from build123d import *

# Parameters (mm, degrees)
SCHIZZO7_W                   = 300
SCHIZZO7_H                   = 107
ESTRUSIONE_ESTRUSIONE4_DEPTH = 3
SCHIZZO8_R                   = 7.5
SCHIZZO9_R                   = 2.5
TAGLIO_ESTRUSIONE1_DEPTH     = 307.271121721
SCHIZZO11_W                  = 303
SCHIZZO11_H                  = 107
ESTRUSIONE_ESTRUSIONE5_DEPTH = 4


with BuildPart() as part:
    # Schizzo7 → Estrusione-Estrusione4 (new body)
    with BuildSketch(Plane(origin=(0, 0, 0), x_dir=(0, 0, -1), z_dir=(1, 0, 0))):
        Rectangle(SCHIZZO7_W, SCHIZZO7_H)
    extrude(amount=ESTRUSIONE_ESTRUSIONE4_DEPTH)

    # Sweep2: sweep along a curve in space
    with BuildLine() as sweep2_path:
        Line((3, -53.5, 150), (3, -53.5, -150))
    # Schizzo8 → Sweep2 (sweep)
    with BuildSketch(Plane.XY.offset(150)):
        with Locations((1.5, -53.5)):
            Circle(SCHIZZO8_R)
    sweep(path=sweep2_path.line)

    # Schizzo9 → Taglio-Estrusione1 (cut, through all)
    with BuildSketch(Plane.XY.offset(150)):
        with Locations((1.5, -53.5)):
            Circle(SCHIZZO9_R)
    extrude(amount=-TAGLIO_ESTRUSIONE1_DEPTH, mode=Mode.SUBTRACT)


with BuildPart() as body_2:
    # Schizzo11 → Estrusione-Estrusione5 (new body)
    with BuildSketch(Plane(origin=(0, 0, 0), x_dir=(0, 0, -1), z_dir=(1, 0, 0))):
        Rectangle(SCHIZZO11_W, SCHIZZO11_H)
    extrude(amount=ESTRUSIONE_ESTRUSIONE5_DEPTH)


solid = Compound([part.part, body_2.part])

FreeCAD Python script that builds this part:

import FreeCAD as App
import Part
import Sketcher

V = App.Vector
Q = App.Units.Quantity


def add_polygon(sketch, points):
    """Adds a closed chain of lines whose ends are joined by coincident constraints."""
    first, n = sketch.GeometryCount, len(points)
    for a, b in zip(points, points[1:] + points[:1]):
        sketch.addGeometry(Part.LineSegment(App.Vector(*a, 0), App.Vector(*b, 0)), False)
    for i in range(n):
        sketch.addConstraint(Sketcher.Constraint("Coincident", first + i, 2, first + (i + 1) % n, 1))

doc = App.newDocument("Part")
params = doc.addObject("Spreadsheet::Sheet", "Params")
for row, (alias, value) in enumerate([
    ("sketch1_width", "107 mm"),
    ("sketch1_height", "300 mm"),
    ("pad1_length", "3 mm"),
    ("sketch2_diameter", "15 mm"),
    ("sketch3_height", "300 mm"),
    ("sketch4_diameter", "5 mm"),
    ("sketch5_width", "107 mm"),
    ("sketch5_height", "303 mm"),
    ("pad2_length", "4 mm"),
], start=1):
    params.set(f"A{row}", alias)
    params.set(f"B{row}", "=" + value)
    params.setAlias(f"B{row}", alias)

body = doc.addObject("PartDesign::Body", "Body")

# Sketch on YZ plane
sketch1 = body.newObject("Sketcher::SketchObject", "Sketch")
sketch1.AttachmentSupport = (doc.getObject("YZ_Plane"), [""])
sketch1.MapMode = "FlatFace"
add_polygon(sketch1, [(54, 150), (-54, 150), (-54, -150), (54, -150)])  # lines 0-3
sketch1.addConstraint([
    Sketcher.Constraint("Horizontal", 0),
    Sketcher.Constraint("Vertical", 1),
    Sketcher.Constraint("Horizontal", 2),
    Sketcher.Constraint("Vertical", 3),
    Sketcher.Constraint("Symmetric", 0, 2, 2, 2, -1, 1),
    Sketcher.Constraint("DistanceX", 0, 2, 0, 1, Q("107 mm")),
    Sketcher.Constraint("DistanceY", 1, 2, 1, 1, Q("300 mm")),
])
sketch1.setExpression("Constraints[9]", "Params.sketch1_width")
sketch1.setExpression("Constraints[10]", "Params.sketch1_height")
pad1 = body.newObject("PartDesign::Pad", "Pad")
pad1.Profile = sketch1
pad1.setExpression("Length", "Params.pad1_length")

# Sketch on XY plane
sketch2 = body.newObject("Sketcher::SketchObject", "Sketch001")
sketch2.AttachmentSupport = (doc.getObject("XY_Plane"), [""])
sketch2.MapMode = "FlatFace"
sketch2.AttachmentOffset = App.Placement(V(0, 0, 150), App.Rotation())
sketch2.addGeometry(Part.Circle(V(2, -54, 0), V(0, 0, 1), 8), False)
sketch2.addConstraint([
    Sketcher.Constraint("Diameter", 0, Q("15 mm")),
    Sketcher.Constraint("DistanceX", -1, 1, 0, 3, Q("1.5 mm")),
    Sketcher.Constraint("DistanceY", 0, 3, -1, 1, Q("53.5 mm")),
])
sketch2.setExpression("Constraints[0]", "Params.sketch2_diameter")

# Sketch on XZ plane
sketch3 = body.newObject("Sketcher::SketchObject", "Sketch002")
sketch3.AttachmentSupport = (doc.getObject("XZ_Plane"), [""])
sketch3.MapMode = "FlatFace"
sketch3.AttachmentOffset = App.Placement(V(0, 0, 53.5), App.Rotation())
sketch3.addGeometry(Part.LineSegment(V(3, 150, 0), V(3, -150, 0)), False)
sketch3.addConstraint([
    Sketcher.Constraint("Vertical", 0),
    Sketcher.Constraint("DistanceY", 0, 2, 0, 1, Q("300 mm")),
    Sketcher.Constraint("DistanceX", -1, 1, 0, 1, Q("3 mm")),
    Sketcher.Constraint("DistanceY", -1, 1, 0, 1, Q("150 mm")),
])
sketch3.setExpression("Constraints[1]", "Params.sketch3_height")
doc.recompute()

additivepipe = body.newObject("PartDesign::AdditivePipe", "AdditivePipe")
additivepipe.Profile = sketch2
additivepipe.Spine = (sketch3, ["Edge1"])

# Sketch on XY plane
sketch4 = body.newObject("Sketcher::SketchObject", "Sketch003")
sketch4.AttachmentSupport = (doc.getObject("XY_Plane"), [""])
sketch4.MapMode = "FlatFace"
sketch4.AttachmentOffset = App.Placement(V(0, 0, 150), App.Rotation())
sketch4.addGeometry(Part.Circle(V(1.5, -53.5, 0), V(0, 0, 1), 2.5), False)
sketch4.addConstraint([
    Sketcher.Constraint("Diameter", 0, Q("5 mm")),
    Sketcher.Constraint("DistanceX", -1, 1, 0, 3, Q("1.5 mm")),
    Sketcher.Constraint("DistanceY", 0, 3, -1, 1, Q("53.5 mm")),
])
sketch4.setExpression("Constraints[0]", "Params.sketch4_diameter")
pocket1 = body.newObject("PartDesign::Pocket", "Pocket")
pocket1.Profile = sketch4
pocket1.Type = "ThroughAll"
body2 = doc.addObject("PartDesign::Body", "Body001")

# Sketch on YZ plane
sketch5 = body2.newObject("Sketcher::SketchObject", "Sketch004")
sketch5.AttachmentSupport = (doc.getObject("YZ_Plane001"), [""])
sketch5.MapMode = "FlatFace"
add_polygon(sketch5, [(54, 152), (-54, 152), (-54, -152), (54, -152)])  # lines 0-3
sketch5.addConstraint([
    Sketcher.Constraint("Horizontal", 0),
    Sketcher.Constraint("Vertical", 1),
    Sketcher.Constraint("Horizontal", 2),
    Sketcher.Constraint("Vertical", 3),
    Sketcher.Constraint("Symmetric", 0, 2, 2, 2, -1, 1),
    Sketcher.Constraint("DistanceX", 0, 2, 0, 1, Q("107 mm")),
    Sketcher.Constraint("DistanceY", 1, 2, 1, 1, Q("303 mm")),
])
sketch5.setExpression("Constraints[9]", "Params.sketch5_width")
sketch5.setExpression("Constraints[10]", "Params.sketch5_height")
pad2 = body2.newObject("PartDesign::Pad", "Pad001")
pad2.Profile = sketch5
pad2.setExpression("Length", "Params.pad2_length")

doc.recompute()
